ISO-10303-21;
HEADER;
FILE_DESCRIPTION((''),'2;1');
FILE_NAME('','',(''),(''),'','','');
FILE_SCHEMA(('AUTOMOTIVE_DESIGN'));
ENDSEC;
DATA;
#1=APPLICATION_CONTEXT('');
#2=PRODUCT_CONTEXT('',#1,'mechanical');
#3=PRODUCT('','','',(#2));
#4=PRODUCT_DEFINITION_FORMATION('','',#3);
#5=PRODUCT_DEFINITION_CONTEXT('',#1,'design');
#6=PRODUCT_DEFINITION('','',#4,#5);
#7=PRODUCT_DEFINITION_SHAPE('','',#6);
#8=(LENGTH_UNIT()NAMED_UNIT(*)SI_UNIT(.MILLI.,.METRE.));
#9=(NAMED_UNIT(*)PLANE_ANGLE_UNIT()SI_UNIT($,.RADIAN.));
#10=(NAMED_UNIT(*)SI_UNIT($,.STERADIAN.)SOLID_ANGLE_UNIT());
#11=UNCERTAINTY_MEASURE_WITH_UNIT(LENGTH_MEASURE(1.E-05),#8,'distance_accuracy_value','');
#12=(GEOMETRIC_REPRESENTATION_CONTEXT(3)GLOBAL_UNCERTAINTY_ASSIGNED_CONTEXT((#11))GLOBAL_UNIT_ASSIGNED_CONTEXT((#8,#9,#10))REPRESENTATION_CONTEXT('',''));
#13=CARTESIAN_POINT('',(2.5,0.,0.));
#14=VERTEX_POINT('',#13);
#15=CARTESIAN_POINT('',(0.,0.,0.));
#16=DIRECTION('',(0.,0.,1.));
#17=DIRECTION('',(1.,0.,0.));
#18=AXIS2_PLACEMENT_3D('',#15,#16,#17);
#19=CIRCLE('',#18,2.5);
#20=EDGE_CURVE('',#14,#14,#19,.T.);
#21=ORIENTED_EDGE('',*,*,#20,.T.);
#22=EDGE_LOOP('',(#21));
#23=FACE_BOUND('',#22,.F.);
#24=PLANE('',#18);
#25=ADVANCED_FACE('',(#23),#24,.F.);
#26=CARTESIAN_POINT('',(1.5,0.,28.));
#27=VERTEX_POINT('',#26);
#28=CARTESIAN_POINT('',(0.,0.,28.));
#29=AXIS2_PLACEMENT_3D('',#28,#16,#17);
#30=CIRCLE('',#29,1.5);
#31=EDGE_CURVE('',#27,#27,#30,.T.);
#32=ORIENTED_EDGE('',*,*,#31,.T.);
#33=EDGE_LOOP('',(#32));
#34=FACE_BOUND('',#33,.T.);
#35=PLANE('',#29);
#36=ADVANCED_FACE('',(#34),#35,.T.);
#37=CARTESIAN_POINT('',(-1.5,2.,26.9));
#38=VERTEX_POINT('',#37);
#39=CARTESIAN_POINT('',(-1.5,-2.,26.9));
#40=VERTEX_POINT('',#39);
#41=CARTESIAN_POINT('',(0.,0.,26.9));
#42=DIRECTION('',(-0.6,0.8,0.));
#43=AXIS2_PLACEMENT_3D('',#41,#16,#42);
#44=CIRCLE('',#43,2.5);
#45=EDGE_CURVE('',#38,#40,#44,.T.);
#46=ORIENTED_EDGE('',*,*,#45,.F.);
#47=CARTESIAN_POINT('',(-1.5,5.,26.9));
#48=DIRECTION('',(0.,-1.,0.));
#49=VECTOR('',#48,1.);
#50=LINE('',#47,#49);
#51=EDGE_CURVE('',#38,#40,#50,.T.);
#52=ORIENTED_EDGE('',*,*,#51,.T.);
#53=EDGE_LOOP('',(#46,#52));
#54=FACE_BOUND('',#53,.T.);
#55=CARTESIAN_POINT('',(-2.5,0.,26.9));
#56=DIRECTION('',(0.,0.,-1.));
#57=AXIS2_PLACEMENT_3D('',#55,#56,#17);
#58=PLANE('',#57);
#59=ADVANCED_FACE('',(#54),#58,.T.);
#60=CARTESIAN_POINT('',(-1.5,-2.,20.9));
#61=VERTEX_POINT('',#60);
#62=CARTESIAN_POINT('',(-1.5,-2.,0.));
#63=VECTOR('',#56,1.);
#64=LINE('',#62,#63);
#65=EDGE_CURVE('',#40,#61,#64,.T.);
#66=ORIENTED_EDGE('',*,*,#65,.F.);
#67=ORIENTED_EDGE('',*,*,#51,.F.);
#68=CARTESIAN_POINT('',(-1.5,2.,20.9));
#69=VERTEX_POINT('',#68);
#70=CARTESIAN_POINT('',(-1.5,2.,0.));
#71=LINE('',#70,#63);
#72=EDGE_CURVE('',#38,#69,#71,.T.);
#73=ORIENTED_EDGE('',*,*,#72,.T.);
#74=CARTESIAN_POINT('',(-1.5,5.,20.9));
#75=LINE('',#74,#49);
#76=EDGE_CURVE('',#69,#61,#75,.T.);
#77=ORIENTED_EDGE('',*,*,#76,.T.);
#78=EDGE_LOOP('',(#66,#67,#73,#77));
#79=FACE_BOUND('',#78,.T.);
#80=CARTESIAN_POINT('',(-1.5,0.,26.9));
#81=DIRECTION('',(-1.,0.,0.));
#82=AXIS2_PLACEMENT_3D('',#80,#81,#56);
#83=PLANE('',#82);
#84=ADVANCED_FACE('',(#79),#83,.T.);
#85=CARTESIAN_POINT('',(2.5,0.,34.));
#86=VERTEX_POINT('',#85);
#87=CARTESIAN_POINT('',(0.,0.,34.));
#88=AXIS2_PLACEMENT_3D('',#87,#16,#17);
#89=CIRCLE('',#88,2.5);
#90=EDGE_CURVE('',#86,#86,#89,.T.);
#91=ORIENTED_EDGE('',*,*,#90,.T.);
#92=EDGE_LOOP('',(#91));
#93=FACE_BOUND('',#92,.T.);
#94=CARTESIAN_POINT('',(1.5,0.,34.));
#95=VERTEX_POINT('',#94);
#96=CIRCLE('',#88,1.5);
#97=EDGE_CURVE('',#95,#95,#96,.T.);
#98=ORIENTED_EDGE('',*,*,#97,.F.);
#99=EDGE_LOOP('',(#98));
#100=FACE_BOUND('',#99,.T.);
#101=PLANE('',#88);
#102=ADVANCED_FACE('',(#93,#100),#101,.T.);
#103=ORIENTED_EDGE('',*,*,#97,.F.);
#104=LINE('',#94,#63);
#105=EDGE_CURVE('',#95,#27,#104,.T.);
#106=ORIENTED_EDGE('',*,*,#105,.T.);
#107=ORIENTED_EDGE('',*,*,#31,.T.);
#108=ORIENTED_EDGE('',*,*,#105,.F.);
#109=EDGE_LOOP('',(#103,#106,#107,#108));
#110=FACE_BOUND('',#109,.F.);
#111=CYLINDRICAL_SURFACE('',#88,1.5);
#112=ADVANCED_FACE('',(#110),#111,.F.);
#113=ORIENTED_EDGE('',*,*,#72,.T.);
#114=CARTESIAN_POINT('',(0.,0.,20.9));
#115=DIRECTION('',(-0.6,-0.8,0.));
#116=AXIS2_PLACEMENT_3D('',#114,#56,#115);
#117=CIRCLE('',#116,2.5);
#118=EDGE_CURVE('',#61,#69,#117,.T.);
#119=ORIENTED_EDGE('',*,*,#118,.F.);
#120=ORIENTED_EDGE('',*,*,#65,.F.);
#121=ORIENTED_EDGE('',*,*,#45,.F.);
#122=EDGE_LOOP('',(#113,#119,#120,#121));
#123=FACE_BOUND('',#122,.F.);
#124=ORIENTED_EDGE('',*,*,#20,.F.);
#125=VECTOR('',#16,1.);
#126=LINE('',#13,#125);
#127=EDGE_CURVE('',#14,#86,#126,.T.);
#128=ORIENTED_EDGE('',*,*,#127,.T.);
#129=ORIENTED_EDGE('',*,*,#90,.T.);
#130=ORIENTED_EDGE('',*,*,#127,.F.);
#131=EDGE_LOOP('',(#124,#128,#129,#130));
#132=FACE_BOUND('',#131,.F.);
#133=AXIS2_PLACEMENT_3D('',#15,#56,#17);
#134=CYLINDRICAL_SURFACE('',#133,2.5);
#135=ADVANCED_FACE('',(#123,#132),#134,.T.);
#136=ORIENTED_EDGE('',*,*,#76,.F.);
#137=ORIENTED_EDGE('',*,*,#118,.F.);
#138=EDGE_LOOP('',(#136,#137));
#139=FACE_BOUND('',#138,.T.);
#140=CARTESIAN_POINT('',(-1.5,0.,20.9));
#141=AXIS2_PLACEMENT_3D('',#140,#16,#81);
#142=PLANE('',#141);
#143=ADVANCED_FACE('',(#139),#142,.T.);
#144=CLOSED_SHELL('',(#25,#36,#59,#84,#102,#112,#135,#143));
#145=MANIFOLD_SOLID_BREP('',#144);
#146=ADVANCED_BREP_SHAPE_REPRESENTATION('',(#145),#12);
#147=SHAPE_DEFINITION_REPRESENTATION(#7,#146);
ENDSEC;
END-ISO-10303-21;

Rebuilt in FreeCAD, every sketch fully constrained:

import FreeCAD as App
import Part
import Sketcher

V = App.Vector


def add_polygon(sketch, points):
    """Adds a closed chain of lines whose ends are joined by coincident constraints."""
    first, n = sketch.GeometryCount, len(points)
    for a, b in zip(points, points[1:] + points[:1]):
        sketch.addGeometry(Part.LineSegment(App.Vector(*a, 0), App.Vector(*b, 0)), False)
    for i in range(n):
        sketch.addConstraint(Sketcher.Constraint("Coincident", first + i, 2, first + (i + 1) % n, 1))

doc = App.newDocument("Part")
body = doc.addObject("PartDesign::Body", "Body")

sketch1 = doc.addObject("Sketcher::SketchObject", "Sketch")
body.addObject(sketch1)
sketch1.AttachmentSupport = (doc.XY_Plane, [""])
sketch1.MapMode = "FlatFace"
sketch1.addGeometry(Part.Circle(V(0, 0, 0), V(0, 0, 1), 2.5), False)
sketch1.addConstraint([
    Sketcher.Constraint("Coincident", 0, 3, -1, 1),
    Sketcher.Constraint("Diameter", 0, 5.0),
])
pad1 = doc.addObject("PartDesign::Pad", "Pad")
body.addObject(pad1)
pad1.Profile = sketch1
pad1.Length = 34

sketch2 = doc.addObject("Sketcher::SketchObject", "Sketch001")
body.addObject(sketch2)
sketch2.AttachmentSupport = (doc.XY_Plane, [""])
sketch2.MapMode = "FlatFace"
sketch2.AttachmentOffset = App.Placement(V(0, 0, 34), App.Rotation())
sketch2.addGeometry(Part.Circle(V(0, 0, 0), V(0, 0, 1), 1.5), False)
sketch2.addConstraint([
    Sketcher.Constraint("Coincident", 0, 3, -1, 1),
    Sketcher.Constraint("Diameter", 0, 3.0),
])
pocket1 = doc.addObject("PartDesign::Pocket", "Pocket")
body.addObject(pocket1)
pocket1.Profile = sketch2
pocket1.Length = 6

sketch3 = doc.addObject("Sketcher::SketchObject", "Sketch002")
body.addObject(sketch3)
sketch3.AttachmentSupport = (doc.XZ_Plane, [""])
sketch3.MapMode = "FlatFace"
add_polygon(sketch3, [(-1.5, 20.9), (-2.5, 20.9), (-2.5, 26.9), (-1.5, 26.9)])
sketch3.addConstraint([
    Sketcher.Constraint("Horizontal", 0),
    Sketcher.Constraint("Vertical", 1),
    Sketcher.Constraint("Horizontal", 2),
    Sketcher.Constraint("Vertical", 3),
    Sketcher.Constraint("DistanceX", 0, 2, 0, 1, 1.0),
    Sketcher.Constraint("DistanceY", 1, 1, 1, 2, 6.0),
    Sketcher.Constraint("DistanceX", 0, 2, -1, 1, 2.5),
    Sketcher.Constraint("DistanceY", -1, 1, 0, 2, 20.9),
])
pocket2 = doc.addObject("PartDesign::Pocket", "Pocket001")
body.addObject(pocket2)
pocket2.Profile = sketch3
pocket2.Length = 10
pocket2.Midplane = True

doc.recompute()
